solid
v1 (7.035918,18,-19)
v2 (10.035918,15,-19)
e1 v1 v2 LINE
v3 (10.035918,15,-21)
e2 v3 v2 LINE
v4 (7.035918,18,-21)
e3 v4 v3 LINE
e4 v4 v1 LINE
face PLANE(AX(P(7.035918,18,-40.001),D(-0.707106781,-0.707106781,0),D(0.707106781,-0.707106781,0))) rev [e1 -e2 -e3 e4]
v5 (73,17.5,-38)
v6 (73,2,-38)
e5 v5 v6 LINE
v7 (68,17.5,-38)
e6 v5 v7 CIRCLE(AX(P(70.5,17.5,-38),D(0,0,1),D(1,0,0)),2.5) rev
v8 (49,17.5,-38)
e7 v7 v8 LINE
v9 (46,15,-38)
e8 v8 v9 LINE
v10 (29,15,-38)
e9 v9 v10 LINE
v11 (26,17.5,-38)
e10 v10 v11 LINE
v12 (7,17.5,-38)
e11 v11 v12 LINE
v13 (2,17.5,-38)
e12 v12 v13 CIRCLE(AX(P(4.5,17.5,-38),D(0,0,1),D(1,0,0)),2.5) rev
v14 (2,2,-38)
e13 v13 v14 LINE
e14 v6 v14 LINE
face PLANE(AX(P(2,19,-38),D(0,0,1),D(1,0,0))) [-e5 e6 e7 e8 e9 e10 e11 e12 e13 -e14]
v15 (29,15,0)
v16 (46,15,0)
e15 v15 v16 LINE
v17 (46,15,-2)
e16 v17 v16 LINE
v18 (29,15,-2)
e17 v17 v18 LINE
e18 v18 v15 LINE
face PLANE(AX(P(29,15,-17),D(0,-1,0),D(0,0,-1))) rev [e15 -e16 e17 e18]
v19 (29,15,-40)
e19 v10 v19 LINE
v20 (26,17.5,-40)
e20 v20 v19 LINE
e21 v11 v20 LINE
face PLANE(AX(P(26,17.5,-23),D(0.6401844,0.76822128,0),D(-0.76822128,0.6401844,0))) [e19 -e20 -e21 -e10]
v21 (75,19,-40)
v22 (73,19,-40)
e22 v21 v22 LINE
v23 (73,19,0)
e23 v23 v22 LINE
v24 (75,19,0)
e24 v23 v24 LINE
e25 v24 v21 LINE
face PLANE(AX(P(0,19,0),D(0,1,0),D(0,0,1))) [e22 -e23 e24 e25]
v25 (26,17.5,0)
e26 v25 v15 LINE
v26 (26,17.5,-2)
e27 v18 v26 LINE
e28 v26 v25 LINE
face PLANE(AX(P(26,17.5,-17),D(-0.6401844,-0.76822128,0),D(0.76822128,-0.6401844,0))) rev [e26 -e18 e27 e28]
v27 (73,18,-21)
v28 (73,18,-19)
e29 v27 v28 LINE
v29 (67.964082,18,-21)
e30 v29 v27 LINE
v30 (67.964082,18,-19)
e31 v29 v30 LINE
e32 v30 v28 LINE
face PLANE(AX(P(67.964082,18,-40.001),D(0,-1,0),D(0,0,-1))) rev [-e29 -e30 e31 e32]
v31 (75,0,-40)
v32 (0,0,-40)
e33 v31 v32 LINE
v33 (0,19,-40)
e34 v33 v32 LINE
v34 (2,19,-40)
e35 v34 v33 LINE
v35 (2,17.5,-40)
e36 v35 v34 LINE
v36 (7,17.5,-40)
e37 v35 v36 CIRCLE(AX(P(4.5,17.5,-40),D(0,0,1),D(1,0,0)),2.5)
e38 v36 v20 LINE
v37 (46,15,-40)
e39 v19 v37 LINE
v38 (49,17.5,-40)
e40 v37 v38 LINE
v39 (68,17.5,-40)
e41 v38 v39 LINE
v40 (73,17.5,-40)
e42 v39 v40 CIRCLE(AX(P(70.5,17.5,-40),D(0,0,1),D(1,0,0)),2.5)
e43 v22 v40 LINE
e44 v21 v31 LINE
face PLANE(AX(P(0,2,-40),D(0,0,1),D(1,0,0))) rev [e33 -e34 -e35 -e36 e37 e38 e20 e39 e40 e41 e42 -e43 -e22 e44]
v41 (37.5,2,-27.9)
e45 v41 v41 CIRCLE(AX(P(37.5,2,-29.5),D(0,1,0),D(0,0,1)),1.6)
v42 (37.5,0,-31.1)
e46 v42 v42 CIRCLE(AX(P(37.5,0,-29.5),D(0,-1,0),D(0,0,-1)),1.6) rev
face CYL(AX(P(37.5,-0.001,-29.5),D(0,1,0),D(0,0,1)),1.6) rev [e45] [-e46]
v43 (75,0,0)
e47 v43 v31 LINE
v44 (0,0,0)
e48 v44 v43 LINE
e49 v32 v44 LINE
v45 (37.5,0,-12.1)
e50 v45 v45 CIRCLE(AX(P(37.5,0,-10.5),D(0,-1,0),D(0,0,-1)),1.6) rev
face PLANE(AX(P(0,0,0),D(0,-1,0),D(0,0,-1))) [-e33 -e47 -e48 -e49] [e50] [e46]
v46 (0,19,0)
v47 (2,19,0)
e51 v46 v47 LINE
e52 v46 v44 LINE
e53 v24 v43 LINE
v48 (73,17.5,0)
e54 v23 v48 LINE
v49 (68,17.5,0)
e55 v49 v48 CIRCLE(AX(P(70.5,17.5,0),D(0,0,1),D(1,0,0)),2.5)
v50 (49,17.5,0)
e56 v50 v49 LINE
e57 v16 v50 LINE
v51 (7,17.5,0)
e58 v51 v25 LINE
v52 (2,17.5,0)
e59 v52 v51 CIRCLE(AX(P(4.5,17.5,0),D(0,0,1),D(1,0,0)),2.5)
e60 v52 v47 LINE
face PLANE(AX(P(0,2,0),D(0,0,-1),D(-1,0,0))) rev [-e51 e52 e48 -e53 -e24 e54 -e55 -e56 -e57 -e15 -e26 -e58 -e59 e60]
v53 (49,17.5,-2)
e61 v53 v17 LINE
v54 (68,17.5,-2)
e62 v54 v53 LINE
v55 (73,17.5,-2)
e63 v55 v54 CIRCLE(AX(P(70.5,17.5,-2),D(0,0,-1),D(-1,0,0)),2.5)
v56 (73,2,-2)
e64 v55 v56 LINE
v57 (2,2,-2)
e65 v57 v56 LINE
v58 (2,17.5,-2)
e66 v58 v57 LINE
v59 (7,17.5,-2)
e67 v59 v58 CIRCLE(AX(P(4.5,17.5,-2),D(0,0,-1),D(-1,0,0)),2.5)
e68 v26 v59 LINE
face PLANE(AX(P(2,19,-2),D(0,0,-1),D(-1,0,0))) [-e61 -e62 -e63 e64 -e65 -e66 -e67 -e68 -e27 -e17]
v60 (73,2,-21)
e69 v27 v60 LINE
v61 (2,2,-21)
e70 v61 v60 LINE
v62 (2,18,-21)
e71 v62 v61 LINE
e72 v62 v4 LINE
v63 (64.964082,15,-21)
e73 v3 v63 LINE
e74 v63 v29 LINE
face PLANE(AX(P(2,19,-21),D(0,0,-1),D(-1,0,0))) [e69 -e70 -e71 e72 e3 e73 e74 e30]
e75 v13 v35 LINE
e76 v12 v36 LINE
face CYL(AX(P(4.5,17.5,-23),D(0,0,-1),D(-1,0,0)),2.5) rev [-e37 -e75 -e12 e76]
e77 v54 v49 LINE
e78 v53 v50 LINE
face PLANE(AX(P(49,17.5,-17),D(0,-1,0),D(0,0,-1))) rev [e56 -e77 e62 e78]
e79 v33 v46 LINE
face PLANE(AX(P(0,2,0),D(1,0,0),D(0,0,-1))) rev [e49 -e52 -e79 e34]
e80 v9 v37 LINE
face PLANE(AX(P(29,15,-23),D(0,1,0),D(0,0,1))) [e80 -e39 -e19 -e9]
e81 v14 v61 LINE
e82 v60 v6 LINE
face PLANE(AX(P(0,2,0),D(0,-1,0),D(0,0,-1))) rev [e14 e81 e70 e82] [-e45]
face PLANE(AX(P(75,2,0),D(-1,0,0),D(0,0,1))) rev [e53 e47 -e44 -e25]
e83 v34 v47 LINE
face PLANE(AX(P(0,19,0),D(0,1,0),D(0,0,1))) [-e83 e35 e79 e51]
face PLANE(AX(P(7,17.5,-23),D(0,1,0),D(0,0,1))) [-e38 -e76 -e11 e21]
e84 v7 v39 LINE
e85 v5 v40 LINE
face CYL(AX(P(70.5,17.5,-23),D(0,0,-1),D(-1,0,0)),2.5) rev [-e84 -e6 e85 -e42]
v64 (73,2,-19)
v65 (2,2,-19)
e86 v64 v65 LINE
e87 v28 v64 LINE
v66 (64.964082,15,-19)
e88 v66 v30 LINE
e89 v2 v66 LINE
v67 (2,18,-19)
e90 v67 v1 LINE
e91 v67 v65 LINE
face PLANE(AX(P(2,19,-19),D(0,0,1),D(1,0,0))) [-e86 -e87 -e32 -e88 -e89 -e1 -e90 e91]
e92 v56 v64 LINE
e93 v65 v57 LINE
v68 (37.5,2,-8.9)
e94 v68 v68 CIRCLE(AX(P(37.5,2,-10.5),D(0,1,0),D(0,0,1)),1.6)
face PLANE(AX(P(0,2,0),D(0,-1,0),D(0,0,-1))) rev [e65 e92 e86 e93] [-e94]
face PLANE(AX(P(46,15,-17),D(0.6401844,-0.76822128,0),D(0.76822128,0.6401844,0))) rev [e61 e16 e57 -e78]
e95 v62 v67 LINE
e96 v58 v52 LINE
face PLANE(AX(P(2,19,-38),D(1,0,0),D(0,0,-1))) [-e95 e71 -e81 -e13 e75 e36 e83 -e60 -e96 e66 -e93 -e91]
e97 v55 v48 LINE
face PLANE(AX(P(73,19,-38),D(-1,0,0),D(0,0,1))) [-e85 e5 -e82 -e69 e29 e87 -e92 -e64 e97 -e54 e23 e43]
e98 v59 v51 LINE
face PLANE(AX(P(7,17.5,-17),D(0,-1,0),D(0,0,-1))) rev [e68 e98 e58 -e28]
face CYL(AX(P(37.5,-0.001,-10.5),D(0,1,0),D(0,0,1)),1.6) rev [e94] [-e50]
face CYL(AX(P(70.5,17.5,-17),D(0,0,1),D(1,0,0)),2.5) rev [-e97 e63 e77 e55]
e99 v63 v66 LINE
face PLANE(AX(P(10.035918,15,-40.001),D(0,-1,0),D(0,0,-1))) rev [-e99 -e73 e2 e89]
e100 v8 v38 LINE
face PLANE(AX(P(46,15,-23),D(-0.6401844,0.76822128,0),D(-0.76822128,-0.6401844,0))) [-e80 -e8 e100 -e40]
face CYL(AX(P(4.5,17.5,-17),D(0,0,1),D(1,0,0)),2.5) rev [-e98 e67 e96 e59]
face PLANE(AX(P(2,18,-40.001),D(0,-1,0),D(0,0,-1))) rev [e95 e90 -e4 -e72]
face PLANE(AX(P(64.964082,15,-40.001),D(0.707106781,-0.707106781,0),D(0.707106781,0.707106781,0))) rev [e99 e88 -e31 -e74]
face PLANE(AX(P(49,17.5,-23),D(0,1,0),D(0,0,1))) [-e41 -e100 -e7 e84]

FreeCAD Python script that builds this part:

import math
import FreeCAD as App
import Part
import Sketcher
Q = App.Units.Quantity


def add_polygon(sketch, points):
    """Adds a closed chain of lines whose ends are joined by coincident constraints."""
    first, n = sketch.GeometryCount, len(points)
    for a, b in zip(points, points[1:] + points[:1]):
        sketch.addGeometry(Part.LineSegment(App.Vector(*a, 0), App.Vector(*b, 0)), False)
    for i in range(n):
        sketch.addConstraint(Sketcher.Constraint("Coincident", first + i, 2, first + (i + 1) % n, 1))

doc = App.newDocument("Part")
body = doc.addObject("PartDesign::Body", "Body")

# Sketch on XZ plane
sketch1 = body.newObject("Sketcher::SketchObject", "Sketch")
sketch1.AttachmentSupport = (doc.getObject("XZ_Plane"), [""])
sketch1.MapMode = "FlatFace"
add_polygon(sketch1, [(0, -40), (0, 0), (75, 0), (75, -40)])  # lines 0-3
sketch1.addConstraint(Sketcher.Constraint("Vertical", 0))
sketch1.addConstraint(Sketcher.Constraint("Horizontal", 1))
sketch1.addConstraint(Sketcher.Constraint("Vertical", 2))
sketch1.addConstraint(Sketcher.Constraint("Horizontal", 3))
sketch1.addConstraint(Sketcher.Constraint("Coincident", 0, 2, -1, 1))
sketch1.addConstraint(Sketcher.Constraint("DistanceX", 1, 1, 1, 2, Q("75 mm")))
sketch1.addConstraint(Sketcher.Constraint("DistanceY", 0, 1, 0, 2, Q("40 mm")))
pad1 = body.newObject("PartDesign::Pad", "Pad")
pad1.Profile = sketch1
pad1.Length = 2
pad1.Reversed = True

# Sketch on XZ plane
sketch2 = body.newObject("Sketcher::SketchObject", "Sketch001")
sketch2.AttachmentSupport = (doc.getObject("XZ_Plane"), [""])
sketch2.MapMode = "FlatFace"
sketch2.AttachmentOffset = App.Placement(App.Vector(0, 0, -2), App.Rotation())
add_polygon(sketch2, [(0, -40), (0, 0), (75, 0), (75, -40)])  # lines 0-3
add_polygon(sketch2, [(73, -2), (2, -2), (2, -19), (73, -19)])  # lines 4-7
add_polygon(sketch2, [(73, -21), (2, -21), (2, -38), (73, -38)])  # lines 8-11
sketch2.addConstraint(Sketcher.Constraint("Vertical", 0))
sketch2.addConstraint(Sketcher.Constraint("Horizontal", 1))
sketch2.addConstraint(Sketcher.Constraint("Vertical", 2))
sketch2.addConstraint(Sketcher.Constraint("Horizontal", 3))
sketch2.addConstraint(Sketcher.Constraint("Horizontal", 4))
sketch2.addConstraint(Sketcher.Constraint("Vertical", 5))
sketch2.addConstraint(Sketcher.Constraint("Horizontal", 6))
sketch2.addConstraint(Sketcher.Constraint("Vertical", 7))
sketch2.addConstraint(Sketcher.Constraint("Horizontal", 8))
sketch2.addConstraint(Sketcher.Constraint("Vertical", 9))
sketch2.addConstraint(Sketcher.Constraint("Horizontal", 10))
sketch2.addConstraint(Sketcher.Constraint("Vertical", 11))
sketch2.addConstraint(Sketcher.Constraint("Coincident", 0, 2, -1, 1))
sketch2.addConstraint(Sketcher.Constraint("Vertical", 5, 2, 8, 2))
sketch2.addConstraint(Sketcher.Constraint("Vertical", 7, 2, 10, 2))
sketch2.addConstraint(Sketcher.Constraint("Equal", 7, 9))
sketch2.addConstraint(Sketcher.Constraint("DistanceX", 1, 1, 1, 2, Q("75 mm")))
sketch2.addConstraint(Sketcher.Constraint("DistanceX", 4, 2, 4, 1, Q("71 mm")))
sketch2.addConstraint(Sketcher.Constraint("DistanceY", 0, 1, 0, 2, Q("40 mm")))
sketch2.addConstraint(Sketcher.Constraint("DistanceY", 5, 2, 5, 1, Q("17 mm")))
sketch2.addConstraint(Sketcher.Constraint("DistanceX", -1, 1, 4, 2, Q("2 mm")))
sketch2.addConstraint(Sketcher.Constraint("DistanceY", 4, 2, -1, 1, Q("2 mm")))
sketch2.addConstraint(Sketcher.Constraint("DistanceY", 8, 2, -1, 1, Q("21 mm")))
pad2 = body.newObject("PartDesign::Pad", "Pad001")
pad2.Profile = sketch2
pad2.Length = 17
pad2.Reversed = True

# Sketch on XY plane
sketch3 = body.newObject("Sketcher::SketchObject", "Sketch002")
sketch3.AttachmentSupport = (doc.getObject("XY_Plane"), [""])
sketch3.MapMode = "FlatFace"
sketch3.addGeometry(Part.LineSegment(App.Vector(2, 19, 0), App.Vector(2, 17.5, 0)), False)
sketch3.addGeometry(Part.ArcOfCircle(Part.Circle(App.Vector(4.5, 17.5, 0), App.Vector(0, 0, 1), 2.5), math.radians(180), math.radians(360)), False)
sketch3.addGeometry(Part.LineSegment(App.Vector(7, 17.5, 0), App.Vector(26, 17.5, 0)), False)
sketch3.addGeometry(Part.LineSegment(App.Vector(26, 17.5, 0), App.Vector(29, 15, 0)), False)
sketch3.addGeometry(Part.LineSegment(App.Vector(29, 15, 0), App.Vector(46, 15, 0)), False)
sketch3.addGeometry(Part.LineSegment(App.Vector(46, 15, 0), App.Vector(49, 17.5, 0)), False)
sketch3.addGeometry(Part.LineSegment(App.Vector(49, 17.5, 0), App.Vector(68, 17.5, 0)), False)
sketch3.addGeometry(Part.ArcOfCircle(Part.Circle(App.Vector(70.5, 17.5, 0), App.Vector(0, 0, 1), 2.5), math.radians(180), math.radians(360)), False)
sketch3.addGeometry(Part.LineSegment(App.Vector(73, 17.5, 0), App.Vector(73, 19, 0)), False)
sketch3.addGeometry(Part.LineSegment(App.Vector(73, 19, 0), App.Vector(2, 19, 0)), False)
sketch3.addConstraint(Sketcher.Constraint("Tangent", 0, 2, 1, 1))
sketch3.addConstraint(Sketcher.Constraint("Coincident", 1, 2, 2, 1))
sketch3.addConstraint(Sketcher.Constraint("Coincident", 2, 2, 3, 1))
sketch3.addConstraint(Sketcher.Constraint("Coincident", 3, 2, 4, 1))
sketch3.addConstraint(Sketcher.Constraint("Coincident", 4, 2, 5, 1))
sketch3.addConstraint(Sketcher.Constraint("Coincident", 5, 2, 6, 1))
sketch3.addConstraint(Sketcher.Constraint("Coincident", 6, 2, 7, 1))
sketch3.addConstraint(Sketcher.Constraint("Tangent", 7, 2, 8, 1))
sketch3.addConstraint(Sketcher.Constraint("Coincident", 8, 2, 9, 1))
sketch3.addConstraint(Sketcher.Constraint("Coincident", 9, 2, 0, 1))
sketch3.addConstraint(Sketcher.Constraint("Vertical", 0))
sketch3.addConstraint(Sketcher.Constraint("Horizontal", 2))
sketch3.addConstraint(Sketcher.Constraint("Horizontal", 4))
sketch3.addConstraint(Sketcher.Constraint("Horizontal", 6))
sketch3.addConstraint(Sketcher.Constraint("Vertical", 8))
sketch3.addConstraint(Sketcher.Constraint("Horizontal", 9))
sketch3.addConstraint(Sketcher.Constraint("Equal", 1, 7))
sketch3.addConstraint(Sketcher.Constraint("Horizontal", 1, 3, 7, 3))
sketch3.addConstraint(Sketcher.Constraint("Horizontal", 0, 2, 1, 2))
sketch3.addConstraint(Sketcher.Constraint("Horizontal", 2, 2, 5, 2))
sketch3.addConstraint(Sketcher.Constraint("Equal", 2, 6))
sketch3.addConstraint(Sketcher.Constraint("Equal", 3, 5))
sketch3.addConstraint(Sketcher.Constraint("Radius", 1, Q("2.5 mm")))
sketch3.addConstraint(Sketcher.Constraint("DistanceX", 2, 1, 2, 2, Q("19 mm")))
sketch3.addConstraint(Sketcher.Constraint("DistanceX", 4, 1, 4, 2, Q("17 mm")))
sketch3.addConstraint(Sketcher.Constraint("DistanceX", 9, 2, 9, 1, Q("71 mm")))
sketch3.addConstraint(Sketcher.Constraint("DistanceY", 0, 2, 0, 1, Q("1.5 mm")))
sketch3.addConstraint(Sketcher.Constraint("DistanceX", -1, 1, 0, 2, Q("2 mm")))
sketch3.addConstraint(Sketcher.Constraint("DistanceY", -1, 1, 3, 2, Q("15 mm")))
sketch3.addConstraint(Sketcher.Constraint("DistanceY", -1, 1, 8, 2, Q("19 mm")))
pocket1 = body.newObject("PartDesign::Pocket", "Pocket")
pocket1.Profile = sketch3
pocket1.Length = 17
doc.recompute()

datumplane = body.newObject("PartDesign::Plane", "DatumPlane")
datumplane.AttachmentSupport = (doc.getObject("XY_Plane"), [""])
datumplane.MapMode = "FlatFace"
datumplane.AttachmentOffset = App.Placement(App.Vector(0, 0, -20), App.Rotation())
mirrored = body.newObject("PartDesign::Mirrored", "Mirrored")
mirrored.Originals = [pocket1]
mirrored.MirrorPlane = (datumplane, [""])
body.Tip = mirrored

# Sketch on XY plane
sketch4 = body.newObject("Sketcher::SketchObject", "Sketch003")
sketch4.AttachmentSupport = (doc.getObject("XY_Plane"), [""])
sketch4.MapMode = "FlatFace"
sketch4.AttachmentOffset = App.Placement(App.Vector(0, 0, -19), App.Rotation())
add_polygon(sketch4, [(2, 18), (7, 18), (10, 15), (65, 15), (68, 18), (73, 18), (73, 19), (2, 19)])  # lines 0-7
sketch4.addConstraint(Sketcher.Constraint("Horizontal", 0))
sketch4.addConstraint(Sketcher.Constraint("Horizontal", 2))
sketch4.addConstraint(Sketcher.Constraint("Horizontal", 4))
sketch4.addConstraint(Sketcher.Constraint("Vertical", 5))
sketch4.addConstraint(Sketcher.Constraint("Horizontal", 6))
sketch4.addConstraint(Sketcher.Constraint("Vertical", 7))
sketch4.addConstraint(Sketcher.Constraint("Perpendicular", 1, 3))
sketch4.addConstraint(Sketcher.Constraint("Horizontal", 0, 2, 3, 2))
sketch4.addConstraint(Sketcher.Constraint("Equal", 0, 4))
sketch4.addConstraint(Sketcher.Constraint("Equal", 1, 3))
sketch4.addConstraint(Sketcher.Constraint("DistanceX", 6, 2, 6, 1, Q("71 mm")))
sketch4.addConstraint(Sketcher.Constraint("DistanceY", 5, 1, 5, 2, Q("1 mm")))
sketch4.addConstraint(Sketcher.Constraint("DistanceY", -1, 1, 0, 2, Q("18 mm")))
sketch4.addConstraint(Sketcher.Constraint("DistanceY", -1, 1, 1, 2, Q("15 mm")))
sketch4.addConstraint(Sketcher.Constraint("DistanceX", -1, 1, 4, 2, Q("73 mm")))
sketch4.addConstraint(Sketcher.Constraint("DistanceX", 0, 1, 0, 2, Q("5.035918 mm")))
pocket2 = body.newObject("PartDesign::Pocket", "Pocket001")
pocket2.Profile = sketch4
pocket2.Type = "UpToFirst"

# Sketch on XZ plane
sketch5 = body.newObject("Sketcher::SketchObject", "Sketch004")
sketch5.AttachmentSupport = (doc.getObject("XZ_Plane"), [""])
sketch5.MapMode = "FlatFace"
sketch5.AttachmentOffset = App.Placement(App.Vector(0, 0, -2), App.Rotation())
sketch5.addGeometry(Part.Circle(App.Vector(37.5, -29.5, 0), App.Vector(0, 0, 1), 1.6), False)
sketch5.addConstraint(Sketcher.Constraint("Diameter", 0, Q("3.2 mm")))
sketch5.addConstraint(Sketcher.Constraint("DistanceX", -1, 1, 0, 3, Q("37.5 mm")))
sketch5.addConstraint(Sketcher.Constraint("DistanceY", 0, 3, -1, 1, Q("29.5 mm")))
pocket3 = body.newObject("PartDesign::Pocket", "Pocket002")
pocket3.Profile = sketch5
pocket3.Type = "UpToFirst"
pocket3.Reversed = True

# Sketch on XZ plane
sketch6 = body.newObject("Sketcher::SketchObject", "Sketch005")
sketch6.AttachmentSupport = (doc.getObject("XZ_Plane"), [""])
sketch6.MapMode = "FlatFace"
sketch6.AttachmentOffset = App.Placement(App.Vector(0, 0, -2), App.Rotation())
sketch6.addGeometry(Part.Circle(App.Vector(37.5, -10.5, 0), App.Vector(0, 0, 1), 1.6), False)
sketch6.addConstraint(Sketcher.Constraint("Diameter", 0, Q("3.2 mm")))
sketch6.addConstraint(Sketcher.Constraint("DistanceX", -1, 1, 0, 3, Q("37.5 mm")))
sketch6.addConstraint(Sketcher.Constraint("DistanceY", 0, 3, -1, 1, Q("10.5 mm")))
pocket4 = body.newObject("PartDesign::Pocket", "Pocket003")
pocket4.Profile = sketch6
pocket4.Type = "UpToFirst"
pocket4.Reversed = True

doc.recompute()
